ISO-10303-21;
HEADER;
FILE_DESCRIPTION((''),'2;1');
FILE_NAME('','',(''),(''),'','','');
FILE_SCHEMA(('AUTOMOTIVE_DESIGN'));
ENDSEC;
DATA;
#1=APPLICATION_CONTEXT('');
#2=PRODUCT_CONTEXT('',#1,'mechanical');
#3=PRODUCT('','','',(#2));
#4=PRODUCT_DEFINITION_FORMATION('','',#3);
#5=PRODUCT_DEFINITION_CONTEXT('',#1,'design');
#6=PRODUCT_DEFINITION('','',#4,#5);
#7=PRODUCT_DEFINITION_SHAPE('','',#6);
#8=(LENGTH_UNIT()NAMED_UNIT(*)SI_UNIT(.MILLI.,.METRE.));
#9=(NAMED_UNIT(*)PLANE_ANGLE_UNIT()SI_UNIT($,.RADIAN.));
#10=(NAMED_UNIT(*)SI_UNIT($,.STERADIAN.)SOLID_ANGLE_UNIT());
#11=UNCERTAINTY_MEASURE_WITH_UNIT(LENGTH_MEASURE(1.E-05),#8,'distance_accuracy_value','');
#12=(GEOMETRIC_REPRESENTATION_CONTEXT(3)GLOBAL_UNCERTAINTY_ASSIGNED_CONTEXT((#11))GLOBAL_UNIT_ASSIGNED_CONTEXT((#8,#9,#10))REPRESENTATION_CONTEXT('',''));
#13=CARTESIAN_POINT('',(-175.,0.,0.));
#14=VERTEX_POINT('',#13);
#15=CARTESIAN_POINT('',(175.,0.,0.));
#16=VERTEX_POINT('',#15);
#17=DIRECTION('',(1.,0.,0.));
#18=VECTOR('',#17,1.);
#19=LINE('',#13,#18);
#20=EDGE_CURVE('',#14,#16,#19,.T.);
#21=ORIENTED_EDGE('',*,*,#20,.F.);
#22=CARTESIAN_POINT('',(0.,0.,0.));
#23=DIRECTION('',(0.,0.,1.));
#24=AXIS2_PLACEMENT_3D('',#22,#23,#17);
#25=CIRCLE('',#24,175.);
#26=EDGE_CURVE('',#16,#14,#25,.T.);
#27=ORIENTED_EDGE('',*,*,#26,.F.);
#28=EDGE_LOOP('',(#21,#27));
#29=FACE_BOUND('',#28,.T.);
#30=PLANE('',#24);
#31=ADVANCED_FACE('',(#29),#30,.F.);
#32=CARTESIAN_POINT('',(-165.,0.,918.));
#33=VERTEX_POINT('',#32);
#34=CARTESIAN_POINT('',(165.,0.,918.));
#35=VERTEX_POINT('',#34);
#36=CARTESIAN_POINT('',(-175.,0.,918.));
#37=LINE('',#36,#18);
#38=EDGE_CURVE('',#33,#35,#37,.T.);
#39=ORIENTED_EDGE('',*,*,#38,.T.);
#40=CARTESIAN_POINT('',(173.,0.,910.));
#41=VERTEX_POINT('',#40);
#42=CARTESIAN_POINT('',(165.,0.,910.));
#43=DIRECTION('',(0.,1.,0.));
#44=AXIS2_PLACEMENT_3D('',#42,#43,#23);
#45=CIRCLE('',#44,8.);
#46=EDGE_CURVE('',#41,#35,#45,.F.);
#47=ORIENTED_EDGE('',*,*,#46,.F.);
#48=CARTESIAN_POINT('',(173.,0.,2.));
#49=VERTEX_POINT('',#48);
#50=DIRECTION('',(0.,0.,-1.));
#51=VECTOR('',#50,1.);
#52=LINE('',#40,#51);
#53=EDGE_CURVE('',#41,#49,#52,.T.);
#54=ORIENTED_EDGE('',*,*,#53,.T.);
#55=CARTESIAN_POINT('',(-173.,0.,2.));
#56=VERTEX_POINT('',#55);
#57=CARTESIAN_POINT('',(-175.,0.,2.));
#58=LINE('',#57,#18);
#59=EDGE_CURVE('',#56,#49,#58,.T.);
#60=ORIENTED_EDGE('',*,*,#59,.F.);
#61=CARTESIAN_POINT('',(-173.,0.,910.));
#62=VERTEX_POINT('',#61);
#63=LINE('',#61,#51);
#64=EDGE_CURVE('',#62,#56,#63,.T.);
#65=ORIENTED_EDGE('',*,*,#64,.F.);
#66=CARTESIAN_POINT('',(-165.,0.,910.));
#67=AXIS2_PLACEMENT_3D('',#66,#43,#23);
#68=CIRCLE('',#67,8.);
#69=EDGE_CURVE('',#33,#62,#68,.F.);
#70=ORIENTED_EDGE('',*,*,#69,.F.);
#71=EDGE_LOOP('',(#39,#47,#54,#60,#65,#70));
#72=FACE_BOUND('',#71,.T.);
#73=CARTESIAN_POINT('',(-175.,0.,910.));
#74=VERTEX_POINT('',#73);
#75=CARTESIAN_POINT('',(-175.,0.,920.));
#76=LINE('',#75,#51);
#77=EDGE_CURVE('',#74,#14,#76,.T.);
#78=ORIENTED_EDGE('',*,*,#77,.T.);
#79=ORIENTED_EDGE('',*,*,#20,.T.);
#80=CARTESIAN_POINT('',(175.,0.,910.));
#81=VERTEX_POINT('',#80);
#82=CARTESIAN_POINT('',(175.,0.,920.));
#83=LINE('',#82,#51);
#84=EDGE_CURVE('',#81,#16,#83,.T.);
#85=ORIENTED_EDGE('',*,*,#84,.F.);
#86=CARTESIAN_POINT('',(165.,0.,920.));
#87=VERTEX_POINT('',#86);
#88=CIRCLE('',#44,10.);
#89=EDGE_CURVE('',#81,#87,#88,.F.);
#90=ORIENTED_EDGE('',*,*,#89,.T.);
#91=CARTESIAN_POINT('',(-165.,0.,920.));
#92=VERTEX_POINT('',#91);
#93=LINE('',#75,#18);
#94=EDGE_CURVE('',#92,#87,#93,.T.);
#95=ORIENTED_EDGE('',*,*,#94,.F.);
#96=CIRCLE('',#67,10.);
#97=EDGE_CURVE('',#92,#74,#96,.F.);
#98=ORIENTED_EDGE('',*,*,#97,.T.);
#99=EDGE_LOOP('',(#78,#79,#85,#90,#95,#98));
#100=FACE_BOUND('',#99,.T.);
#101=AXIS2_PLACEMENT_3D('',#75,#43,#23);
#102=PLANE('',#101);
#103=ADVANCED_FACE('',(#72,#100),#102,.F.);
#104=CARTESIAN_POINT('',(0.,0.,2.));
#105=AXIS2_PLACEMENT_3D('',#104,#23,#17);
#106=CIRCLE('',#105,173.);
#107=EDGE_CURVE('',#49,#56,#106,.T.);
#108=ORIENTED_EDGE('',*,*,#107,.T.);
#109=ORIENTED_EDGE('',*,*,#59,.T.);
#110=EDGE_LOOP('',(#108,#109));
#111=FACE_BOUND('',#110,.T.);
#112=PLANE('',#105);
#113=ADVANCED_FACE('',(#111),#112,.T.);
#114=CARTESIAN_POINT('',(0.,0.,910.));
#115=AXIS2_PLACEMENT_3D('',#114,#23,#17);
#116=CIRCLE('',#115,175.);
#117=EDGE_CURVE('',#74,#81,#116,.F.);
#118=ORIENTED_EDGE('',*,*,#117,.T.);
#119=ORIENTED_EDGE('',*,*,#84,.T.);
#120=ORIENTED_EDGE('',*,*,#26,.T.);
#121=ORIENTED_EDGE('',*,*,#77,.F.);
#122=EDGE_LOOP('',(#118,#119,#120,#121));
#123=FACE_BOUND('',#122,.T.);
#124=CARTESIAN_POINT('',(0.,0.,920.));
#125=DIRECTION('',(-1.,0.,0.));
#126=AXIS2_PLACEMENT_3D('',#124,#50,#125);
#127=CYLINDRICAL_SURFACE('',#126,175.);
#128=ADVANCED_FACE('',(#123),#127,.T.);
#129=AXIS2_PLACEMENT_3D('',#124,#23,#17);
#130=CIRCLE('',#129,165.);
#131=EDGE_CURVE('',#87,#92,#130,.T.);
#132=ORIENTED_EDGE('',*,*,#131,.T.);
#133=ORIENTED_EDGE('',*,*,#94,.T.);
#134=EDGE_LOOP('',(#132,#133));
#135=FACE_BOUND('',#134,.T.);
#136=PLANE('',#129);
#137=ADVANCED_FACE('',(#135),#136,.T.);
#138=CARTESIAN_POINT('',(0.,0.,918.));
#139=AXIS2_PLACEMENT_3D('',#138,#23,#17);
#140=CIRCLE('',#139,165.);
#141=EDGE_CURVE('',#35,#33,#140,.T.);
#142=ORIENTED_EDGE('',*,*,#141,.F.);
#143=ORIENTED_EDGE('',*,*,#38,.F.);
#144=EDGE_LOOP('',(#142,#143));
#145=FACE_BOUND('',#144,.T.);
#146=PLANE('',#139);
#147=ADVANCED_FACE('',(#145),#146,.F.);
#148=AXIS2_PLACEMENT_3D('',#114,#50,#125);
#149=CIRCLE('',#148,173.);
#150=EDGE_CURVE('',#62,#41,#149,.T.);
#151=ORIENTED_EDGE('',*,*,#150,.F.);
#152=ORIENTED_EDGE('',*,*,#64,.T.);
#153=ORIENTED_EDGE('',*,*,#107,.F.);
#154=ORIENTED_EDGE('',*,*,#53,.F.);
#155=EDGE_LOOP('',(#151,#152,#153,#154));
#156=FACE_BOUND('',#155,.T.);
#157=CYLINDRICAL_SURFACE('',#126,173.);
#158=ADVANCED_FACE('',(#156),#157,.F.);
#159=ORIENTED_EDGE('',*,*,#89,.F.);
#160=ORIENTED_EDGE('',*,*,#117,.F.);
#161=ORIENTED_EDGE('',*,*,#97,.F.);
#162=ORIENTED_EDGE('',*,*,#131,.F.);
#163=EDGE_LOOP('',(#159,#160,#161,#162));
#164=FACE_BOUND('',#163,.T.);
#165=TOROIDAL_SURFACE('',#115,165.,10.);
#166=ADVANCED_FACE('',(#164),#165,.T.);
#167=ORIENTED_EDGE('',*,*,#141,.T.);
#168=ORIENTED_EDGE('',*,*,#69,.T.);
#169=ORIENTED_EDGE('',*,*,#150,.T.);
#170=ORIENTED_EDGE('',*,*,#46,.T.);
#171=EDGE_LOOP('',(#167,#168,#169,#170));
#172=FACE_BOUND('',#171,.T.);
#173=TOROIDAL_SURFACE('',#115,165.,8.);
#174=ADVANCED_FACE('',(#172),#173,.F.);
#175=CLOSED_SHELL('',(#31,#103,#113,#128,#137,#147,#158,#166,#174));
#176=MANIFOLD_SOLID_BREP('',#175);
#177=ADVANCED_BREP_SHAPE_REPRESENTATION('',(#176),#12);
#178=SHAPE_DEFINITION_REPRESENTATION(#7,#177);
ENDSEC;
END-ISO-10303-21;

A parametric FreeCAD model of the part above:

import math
import FreeCAD as App
import Part
import Sketcher
Q = App.Units.Quantity


def edges_at(feature, points):
    """Names of the edges that pass closest to the given points."""
    edges = feature.Shape.Edges
    near = lambda p: min(range(len(edges)), key=lambda i: edges[i].distToShape(Part.Vertex(*p))[0])
    return sorted({f"Edge{near(p) + 1}" for p in points})


def faces_at(feature, points):
    """Names of the faces that lie closest to the given points."""
    faces = feature.Shape.Faces
    near = lambda p: min(range(len(faces)), key=lambda i: faces[i].distToShape(Part.Vertex(*p))[0])
    return sorted({f"Face{near(p) + 1}" for p in points})

doc = App.newDocument("Part")
params = doc.addObject("Spreadsheet::Sheet", "Params")
for row, (alias, value) in enumerate([
    ("sketch1_radius", "175 mm"),
    ("pad1_length", "920 mm"),
    ("fillet_radius", "10 mm"),
    ("thickness_wall", "2 mm"),
], start=1):
    params.set(f"A{row}", alias)
    params.set(f"B{row}", "=" + value)
    params.setAlias(f"B{row}", alias)

body = doc.addObject("PartDesign::Body", "Body")

sketch1 = doc.addObject("Sketcher::SketchObject", "Sketch")
body.addObject(sketch1)
sketch1.AttachmentSupport = (doc.XY_Plane, [""])
sketch1.MapMode = "FlatFace"
sketch1.addGeometry([
    Part.LineSegment(App.Vector(-175, 0, 0), App.Vector(175, 0, 0)),
    Part.ArcOfCircle(Part.Circle(App.Vector(0, 0, 0), App.Vector(0, 0, 1), 175), math.radians(0), math.radians(180)),
], False)
sketch1.addConstraint([
    Sketcher.Constraint("Coincident", 0, 1, 1, 2),
    Sketcher.Constraint("Coincident", 1, 1, 0, 2),
    Sketcher.Constraint("Horizontal", 0),
    Sketcher.Constraint("Coincident", 1, 3, -1, 1),
    Sketcher.Constraint("PointOnObject", 0, 1, -1),
    Sketcher.Constraint("Radius", 1, Q("175 mm")),
])
sketch1.setExpression("Constraints[5]", "Params.sketch1_radius")
pad1 = doc.addObject("PartDesign::Pad", "Pad")
body.addObject(pad1)
pad1.Profile = sketch1
pad1.setExpression("Length", "Params.pad1_length")
doc.recompute()

fillet = doc.addObject("PartDesign::Fillet", "Fillet")
body.addObject(fillet)
fillet.Base = (pad1, edges_at(pad1, [(0, 175, 920)]))
fillet.setExpression("Radius", "Params.fillet_radius")
doc.recompute()

thickness = doc.addObject("PartDesign::Thickness", "Thickness")
body.addObject(thickness)
thickness.Base = (fillet, faces_at(fillet, [(0, 0, 460)]))
thickness.setExpression("Value", "Params.thickness_wall")
thickness.Reversed = True
thickness.Join = "Arc"

doc.recompute()
